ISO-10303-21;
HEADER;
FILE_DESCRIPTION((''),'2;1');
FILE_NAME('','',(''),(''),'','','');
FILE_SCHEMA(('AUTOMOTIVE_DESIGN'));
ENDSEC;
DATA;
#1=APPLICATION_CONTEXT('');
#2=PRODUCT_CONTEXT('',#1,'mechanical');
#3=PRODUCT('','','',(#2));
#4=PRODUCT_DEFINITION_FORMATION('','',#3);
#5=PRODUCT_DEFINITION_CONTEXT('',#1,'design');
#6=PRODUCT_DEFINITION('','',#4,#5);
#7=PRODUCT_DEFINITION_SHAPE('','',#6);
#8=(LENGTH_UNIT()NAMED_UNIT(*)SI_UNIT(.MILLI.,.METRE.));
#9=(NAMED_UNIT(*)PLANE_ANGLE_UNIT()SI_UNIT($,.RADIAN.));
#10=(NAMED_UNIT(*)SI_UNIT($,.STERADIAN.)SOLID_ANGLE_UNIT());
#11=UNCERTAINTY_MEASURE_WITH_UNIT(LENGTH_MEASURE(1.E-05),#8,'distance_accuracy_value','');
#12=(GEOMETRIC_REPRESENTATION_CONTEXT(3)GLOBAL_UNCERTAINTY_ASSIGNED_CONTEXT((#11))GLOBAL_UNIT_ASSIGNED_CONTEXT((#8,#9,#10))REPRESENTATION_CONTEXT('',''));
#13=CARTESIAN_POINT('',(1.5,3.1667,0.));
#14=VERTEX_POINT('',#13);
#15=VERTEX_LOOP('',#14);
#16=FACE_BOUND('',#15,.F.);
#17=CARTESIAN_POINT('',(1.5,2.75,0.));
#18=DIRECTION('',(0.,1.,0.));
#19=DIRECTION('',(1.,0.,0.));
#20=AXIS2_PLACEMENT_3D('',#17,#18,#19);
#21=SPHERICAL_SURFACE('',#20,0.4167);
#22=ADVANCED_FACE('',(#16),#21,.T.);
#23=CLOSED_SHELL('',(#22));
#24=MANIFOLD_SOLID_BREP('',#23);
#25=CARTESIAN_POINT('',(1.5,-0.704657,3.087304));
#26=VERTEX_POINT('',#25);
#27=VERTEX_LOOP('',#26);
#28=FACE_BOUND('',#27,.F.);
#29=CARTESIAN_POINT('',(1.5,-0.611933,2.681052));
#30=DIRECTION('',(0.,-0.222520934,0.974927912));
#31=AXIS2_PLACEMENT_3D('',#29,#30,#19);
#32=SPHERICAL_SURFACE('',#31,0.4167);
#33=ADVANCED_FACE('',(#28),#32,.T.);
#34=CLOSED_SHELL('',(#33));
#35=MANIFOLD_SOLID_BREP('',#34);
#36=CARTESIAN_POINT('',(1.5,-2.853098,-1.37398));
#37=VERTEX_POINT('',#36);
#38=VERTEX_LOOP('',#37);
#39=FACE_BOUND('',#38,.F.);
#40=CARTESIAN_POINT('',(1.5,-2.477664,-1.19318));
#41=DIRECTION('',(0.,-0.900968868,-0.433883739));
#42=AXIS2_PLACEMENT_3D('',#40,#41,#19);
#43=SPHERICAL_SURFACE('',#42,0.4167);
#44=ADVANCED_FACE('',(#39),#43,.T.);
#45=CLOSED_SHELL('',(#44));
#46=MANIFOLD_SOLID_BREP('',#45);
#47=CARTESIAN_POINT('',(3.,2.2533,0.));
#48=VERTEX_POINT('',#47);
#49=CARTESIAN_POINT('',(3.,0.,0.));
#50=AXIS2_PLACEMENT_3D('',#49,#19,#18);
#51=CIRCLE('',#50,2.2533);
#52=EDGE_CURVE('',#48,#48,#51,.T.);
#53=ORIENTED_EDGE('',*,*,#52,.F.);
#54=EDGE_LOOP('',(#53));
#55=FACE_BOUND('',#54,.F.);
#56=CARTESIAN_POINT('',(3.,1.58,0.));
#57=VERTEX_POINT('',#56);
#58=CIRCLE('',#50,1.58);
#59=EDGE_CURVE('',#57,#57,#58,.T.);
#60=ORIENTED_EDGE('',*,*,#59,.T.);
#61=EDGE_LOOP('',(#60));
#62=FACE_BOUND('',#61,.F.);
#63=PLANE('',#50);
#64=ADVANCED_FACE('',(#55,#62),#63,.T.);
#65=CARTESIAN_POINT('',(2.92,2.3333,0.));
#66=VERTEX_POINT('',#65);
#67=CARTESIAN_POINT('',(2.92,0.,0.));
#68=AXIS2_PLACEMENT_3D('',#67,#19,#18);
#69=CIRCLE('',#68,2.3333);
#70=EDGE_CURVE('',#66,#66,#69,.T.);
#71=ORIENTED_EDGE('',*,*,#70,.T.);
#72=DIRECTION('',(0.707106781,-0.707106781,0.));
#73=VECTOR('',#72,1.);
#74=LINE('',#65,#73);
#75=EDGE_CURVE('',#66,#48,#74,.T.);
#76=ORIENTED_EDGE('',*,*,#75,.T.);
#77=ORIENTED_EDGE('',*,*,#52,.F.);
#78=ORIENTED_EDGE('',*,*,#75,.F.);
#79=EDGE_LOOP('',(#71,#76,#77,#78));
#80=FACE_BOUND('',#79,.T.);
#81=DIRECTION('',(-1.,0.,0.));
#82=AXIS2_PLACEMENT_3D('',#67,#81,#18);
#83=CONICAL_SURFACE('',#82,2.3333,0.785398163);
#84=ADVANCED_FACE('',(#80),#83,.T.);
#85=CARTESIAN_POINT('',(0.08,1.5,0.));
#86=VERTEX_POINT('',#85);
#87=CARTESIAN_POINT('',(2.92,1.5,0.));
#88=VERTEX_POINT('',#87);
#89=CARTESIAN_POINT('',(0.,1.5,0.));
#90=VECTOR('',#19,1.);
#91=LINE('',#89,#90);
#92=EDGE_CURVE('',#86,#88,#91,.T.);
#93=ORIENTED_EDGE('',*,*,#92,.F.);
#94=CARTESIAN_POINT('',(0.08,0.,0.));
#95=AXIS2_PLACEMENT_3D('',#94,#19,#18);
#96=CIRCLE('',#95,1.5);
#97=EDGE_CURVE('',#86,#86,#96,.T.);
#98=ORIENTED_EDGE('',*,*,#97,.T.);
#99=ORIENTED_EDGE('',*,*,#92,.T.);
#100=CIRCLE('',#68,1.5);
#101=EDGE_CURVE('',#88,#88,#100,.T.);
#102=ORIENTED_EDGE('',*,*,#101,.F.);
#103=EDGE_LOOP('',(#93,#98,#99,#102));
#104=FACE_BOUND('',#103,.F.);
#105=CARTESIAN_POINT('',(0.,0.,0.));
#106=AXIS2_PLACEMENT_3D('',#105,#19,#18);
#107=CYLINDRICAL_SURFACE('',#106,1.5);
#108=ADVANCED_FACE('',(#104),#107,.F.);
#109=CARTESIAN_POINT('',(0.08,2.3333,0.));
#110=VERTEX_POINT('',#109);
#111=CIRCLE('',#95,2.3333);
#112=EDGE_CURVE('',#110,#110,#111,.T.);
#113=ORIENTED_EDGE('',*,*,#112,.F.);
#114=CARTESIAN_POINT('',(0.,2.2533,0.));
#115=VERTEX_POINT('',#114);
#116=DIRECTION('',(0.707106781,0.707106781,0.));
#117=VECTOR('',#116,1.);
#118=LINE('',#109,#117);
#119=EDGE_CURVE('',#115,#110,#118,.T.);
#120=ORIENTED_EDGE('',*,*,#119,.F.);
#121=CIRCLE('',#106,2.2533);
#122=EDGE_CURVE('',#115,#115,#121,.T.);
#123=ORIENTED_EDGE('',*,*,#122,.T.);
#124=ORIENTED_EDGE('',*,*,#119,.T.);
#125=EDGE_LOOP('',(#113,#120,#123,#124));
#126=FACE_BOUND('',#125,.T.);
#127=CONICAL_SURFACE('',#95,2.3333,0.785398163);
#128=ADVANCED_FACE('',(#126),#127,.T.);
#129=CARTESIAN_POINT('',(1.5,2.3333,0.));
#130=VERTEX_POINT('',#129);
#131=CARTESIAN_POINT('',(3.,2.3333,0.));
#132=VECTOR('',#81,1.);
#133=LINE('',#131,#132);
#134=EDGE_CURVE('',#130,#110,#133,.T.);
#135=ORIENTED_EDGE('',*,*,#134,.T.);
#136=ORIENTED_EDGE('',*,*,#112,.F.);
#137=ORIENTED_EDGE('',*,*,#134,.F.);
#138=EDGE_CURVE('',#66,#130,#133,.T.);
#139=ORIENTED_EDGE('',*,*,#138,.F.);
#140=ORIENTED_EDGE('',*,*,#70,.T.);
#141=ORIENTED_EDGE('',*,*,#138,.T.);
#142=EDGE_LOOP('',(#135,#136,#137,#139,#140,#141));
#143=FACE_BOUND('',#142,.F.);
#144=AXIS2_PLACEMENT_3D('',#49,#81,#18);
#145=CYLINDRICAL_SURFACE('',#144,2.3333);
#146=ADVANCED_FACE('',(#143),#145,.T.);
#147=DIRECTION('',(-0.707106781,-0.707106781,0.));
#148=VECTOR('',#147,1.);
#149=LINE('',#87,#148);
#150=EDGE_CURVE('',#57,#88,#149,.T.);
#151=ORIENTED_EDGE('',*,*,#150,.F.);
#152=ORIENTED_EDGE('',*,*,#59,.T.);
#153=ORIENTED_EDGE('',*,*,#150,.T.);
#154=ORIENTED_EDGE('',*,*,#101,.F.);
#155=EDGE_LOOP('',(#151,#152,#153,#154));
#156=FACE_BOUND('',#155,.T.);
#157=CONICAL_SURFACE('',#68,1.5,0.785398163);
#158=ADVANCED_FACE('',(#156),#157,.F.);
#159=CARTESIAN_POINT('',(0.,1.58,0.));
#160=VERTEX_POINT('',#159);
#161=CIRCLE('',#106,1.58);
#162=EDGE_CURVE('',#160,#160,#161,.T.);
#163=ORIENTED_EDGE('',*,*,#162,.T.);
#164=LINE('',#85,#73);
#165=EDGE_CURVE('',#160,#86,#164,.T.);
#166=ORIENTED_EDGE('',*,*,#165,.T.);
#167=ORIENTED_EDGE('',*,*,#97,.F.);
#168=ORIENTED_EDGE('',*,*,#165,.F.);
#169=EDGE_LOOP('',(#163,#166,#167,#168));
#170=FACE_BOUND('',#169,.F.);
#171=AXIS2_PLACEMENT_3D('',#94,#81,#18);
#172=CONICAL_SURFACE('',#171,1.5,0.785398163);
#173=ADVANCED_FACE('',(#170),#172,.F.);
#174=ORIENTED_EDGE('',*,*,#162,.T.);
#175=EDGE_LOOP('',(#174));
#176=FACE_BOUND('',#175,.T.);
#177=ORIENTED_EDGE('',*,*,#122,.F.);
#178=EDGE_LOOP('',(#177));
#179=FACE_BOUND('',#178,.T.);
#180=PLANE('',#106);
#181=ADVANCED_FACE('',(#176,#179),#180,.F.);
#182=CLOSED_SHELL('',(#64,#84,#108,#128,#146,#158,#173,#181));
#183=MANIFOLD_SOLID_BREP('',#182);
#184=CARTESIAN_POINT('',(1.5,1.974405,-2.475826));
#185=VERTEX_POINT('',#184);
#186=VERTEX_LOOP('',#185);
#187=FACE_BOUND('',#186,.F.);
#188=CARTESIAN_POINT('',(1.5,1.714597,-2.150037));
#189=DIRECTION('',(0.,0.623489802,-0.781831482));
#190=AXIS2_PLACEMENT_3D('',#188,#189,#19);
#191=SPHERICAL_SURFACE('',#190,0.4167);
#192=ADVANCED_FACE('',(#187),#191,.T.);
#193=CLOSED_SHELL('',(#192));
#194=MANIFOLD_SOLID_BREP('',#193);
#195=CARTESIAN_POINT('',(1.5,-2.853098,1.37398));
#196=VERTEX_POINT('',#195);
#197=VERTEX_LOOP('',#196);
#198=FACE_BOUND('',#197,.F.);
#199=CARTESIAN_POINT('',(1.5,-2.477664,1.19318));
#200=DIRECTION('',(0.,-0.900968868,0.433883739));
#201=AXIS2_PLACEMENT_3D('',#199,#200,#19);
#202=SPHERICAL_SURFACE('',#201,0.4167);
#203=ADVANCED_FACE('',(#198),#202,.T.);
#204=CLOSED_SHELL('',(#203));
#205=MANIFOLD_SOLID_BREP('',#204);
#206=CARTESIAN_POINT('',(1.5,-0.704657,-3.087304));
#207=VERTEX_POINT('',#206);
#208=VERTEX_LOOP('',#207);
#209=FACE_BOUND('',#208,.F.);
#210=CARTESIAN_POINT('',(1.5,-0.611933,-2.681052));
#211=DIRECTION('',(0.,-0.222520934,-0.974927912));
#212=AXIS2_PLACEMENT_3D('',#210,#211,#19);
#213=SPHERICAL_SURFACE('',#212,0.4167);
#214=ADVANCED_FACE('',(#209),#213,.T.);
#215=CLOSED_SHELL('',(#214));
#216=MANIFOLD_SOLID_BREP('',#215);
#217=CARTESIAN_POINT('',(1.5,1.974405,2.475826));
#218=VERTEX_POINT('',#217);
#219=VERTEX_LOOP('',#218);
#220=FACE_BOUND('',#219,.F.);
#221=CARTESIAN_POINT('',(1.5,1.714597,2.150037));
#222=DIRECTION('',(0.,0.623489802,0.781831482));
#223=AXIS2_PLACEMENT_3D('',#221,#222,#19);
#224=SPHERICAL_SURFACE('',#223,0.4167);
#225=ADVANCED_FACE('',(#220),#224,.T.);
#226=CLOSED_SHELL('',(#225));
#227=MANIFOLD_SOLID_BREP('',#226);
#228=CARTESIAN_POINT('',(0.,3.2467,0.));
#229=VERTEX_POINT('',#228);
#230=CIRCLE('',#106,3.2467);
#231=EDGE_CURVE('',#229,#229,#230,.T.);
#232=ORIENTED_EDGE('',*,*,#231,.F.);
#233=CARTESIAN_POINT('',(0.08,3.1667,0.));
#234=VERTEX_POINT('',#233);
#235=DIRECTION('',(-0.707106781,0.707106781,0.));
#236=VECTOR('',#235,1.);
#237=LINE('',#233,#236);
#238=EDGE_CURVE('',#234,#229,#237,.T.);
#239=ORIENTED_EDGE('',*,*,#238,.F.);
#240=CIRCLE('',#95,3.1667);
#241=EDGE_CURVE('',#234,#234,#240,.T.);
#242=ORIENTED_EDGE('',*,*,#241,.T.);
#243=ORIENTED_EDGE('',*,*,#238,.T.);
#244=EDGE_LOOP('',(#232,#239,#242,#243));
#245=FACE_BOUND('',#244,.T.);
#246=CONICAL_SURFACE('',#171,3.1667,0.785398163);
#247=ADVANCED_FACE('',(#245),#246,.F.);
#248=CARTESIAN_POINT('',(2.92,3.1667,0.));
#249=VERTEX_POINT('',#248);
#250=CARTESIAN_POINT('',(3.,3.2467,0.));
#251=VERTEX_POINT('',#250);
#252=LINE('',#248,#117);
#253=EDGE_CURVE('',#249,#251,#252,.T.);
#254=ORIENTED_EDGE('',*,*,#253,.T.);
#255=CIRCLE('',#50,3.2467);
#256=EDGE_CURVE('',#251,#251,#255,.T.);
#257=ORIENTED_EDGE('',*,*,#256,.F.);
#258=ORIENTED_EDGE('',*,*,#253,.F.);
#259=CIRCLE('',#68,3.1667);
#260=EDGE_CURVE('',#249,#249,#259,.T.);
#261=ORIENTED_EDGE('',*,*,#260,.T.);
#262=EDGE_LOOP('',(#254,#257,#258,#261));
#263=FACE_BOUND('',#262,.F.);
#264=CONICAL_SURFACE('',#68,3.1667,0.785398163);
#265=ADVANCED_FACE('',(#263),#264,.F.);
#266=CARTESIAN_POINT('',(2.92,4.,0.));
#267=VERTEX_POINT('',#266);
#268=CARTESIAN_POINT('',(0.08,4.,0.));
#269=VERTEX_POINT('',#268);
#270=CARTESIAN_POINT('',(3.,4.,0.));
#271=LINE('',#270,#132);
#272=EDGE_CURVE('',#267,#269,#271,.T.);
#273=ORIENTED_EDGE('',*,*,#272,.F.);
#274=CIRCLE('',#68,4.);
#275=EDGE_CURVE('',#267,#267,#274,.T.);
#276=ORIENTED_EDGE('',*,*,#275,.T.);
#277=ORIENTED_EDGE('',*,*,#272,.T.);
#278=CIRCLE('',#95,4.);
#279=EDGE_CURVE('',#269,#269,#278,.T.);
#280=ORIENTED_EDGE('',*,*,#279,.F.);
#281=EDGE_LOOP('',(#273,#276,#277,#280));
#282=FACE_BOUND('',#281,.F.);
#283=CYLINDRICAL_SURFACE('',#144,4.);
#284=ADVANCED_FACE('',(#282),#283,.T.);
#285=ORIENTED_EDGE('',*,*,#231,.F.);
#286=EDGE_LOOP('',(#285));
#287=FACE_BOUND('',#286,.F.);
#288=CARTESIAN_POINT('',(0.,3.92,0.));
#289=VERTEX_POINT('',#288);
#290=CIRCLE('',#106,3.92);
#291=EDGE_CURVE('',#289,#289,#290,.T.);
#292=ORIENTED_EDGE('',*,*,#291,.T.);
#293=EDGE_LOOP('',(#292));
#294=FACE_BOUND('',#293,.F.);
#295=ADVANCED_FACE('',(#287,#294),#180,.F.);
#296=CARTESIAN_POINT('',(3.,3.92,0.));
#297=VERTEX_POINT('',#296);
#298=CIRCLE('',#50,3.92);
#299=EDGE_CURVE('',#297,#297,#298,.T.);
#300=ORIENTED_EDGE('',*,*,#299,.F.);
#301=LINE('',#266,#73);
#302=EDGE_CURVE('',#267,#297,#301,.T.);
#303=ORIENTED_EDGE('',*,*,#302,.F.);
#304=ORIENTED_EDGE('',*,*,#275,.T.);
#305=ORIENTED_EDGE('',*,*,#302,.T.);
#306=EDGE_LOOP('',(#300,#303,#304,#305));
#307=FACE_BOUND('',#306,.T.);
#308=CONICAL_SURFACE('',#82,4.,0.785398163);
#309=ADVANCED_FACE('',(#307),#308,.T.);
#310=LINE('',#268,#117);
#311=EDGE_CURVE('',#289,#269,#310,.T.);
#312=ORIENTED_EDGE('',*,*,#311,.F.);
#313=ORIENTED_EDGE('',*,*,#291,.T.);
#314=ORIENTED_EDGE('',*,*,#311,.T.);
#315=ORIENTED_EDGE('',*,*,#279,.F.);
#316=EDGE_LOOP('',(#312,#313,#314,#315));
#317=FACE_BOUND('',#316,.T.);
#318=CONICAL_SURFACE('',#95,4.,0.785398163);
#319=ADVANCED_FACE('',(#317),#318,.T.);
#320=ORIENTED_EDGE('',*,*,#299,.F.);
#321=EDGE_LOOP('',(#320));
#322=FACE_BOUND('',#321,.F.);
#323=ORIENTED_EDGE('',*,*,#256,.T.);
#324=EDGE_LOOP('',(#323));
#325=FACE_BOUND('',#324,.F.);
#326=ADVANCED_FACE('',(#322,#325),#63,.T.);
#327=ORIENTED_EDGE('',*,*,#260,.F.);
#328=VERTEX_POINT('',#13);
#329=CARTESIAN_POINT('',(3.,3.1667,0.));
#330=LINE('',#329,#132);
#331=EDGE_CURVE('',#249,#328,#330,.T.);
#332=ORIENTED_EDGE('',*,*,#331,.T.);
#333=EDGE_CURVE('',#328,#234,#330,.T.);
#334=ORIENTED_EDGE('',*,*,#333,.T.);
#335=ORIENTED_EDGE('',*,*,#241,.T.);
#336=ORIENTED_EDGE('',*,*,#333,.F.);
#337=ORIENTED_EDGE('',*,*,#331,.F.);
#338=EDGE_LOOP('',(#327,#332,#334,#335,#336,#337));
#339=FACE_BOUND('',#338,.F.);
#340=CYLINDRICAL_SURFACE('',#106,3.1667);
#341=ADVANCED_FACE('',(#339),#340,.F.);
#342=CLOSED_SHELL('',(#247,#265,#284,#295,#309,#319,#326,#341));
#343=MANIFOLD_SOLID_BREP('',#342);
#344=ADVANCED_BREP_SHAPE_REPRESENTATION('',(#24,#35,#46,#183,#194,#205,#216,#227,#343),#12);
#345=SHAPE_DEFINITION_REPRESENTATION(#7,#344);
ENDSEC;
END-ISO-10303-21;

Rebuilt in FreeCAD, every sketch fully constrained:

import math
import FreeCAD as App
import Part
import Sketcher

V = App.Vector


def edges_at(feature, points):
    """Names of the edges that pass closest to the given points."""
    edges = feature.Shape.Edges
    near = lambda p: min(range(len(edges)), key=lambda i: edges[i].distToShape(Part.Vertex(*p))[0])
    return sorted({f"Edge{near(p) + 1}" for p in points})

doc = App.newDocument("Part")
params = doc.addObject("Spreadsheet::Sheet", "Params")
for row, (alias, value) in enumerate([
    ("sketch1_width", "3 mm"),
    ("revolution_angle", "360 deg"),
    ("chamfer_size", "0.08 mm"),
    ("revolution2_angle", "360 deg"),
], start=1):
    params.set(f"A{row}", alias)
    params.set(f"B{row}", "=" + value)
    params.setAlias(f"B{row}", alias)

body = doc.addObject("PartDesign::Body", "Body")
body.AllowCompound = True

# Sketch on XY plane
sketch1 = doc.addObject("Sketcher::SketchObject", "Sketch")
body.addObject(sketch1)
sketch1.AttachmentSupport = (doc.XY_Plane, [""])
sketch1.MapMode = "FlatFace"
sketch1.addGeometry(Part.LineSegment(V(0, 3.2, 0), V(3, 3.2, 0)), False)
sketch1.addGeometry(Part.LineSegment(V(3, 3.2, 0), V(3, 4, 0)), False)
sketch1.addGeometry(Part.LineSegment(V(3, 4, 0), V(0, 4, 0)), False)
sketch1.addGeometry(Part.LineSegment(V(0, 4, 0), V(0, 3.2, 0)), False)
sketch1.addGeometry(Part.LineSegment(V(0, 2.3, 0), V(0, 1.5, 0)), False)
sketch1.addGeometry(Part.LineSegment(V(0, 1.5, 0), V(3, 1.5, 0)), False)
sketch1.addGeometry(Part.LineSegment(V(3, 1.5, 0), V(3, 2.3, 0)), False)
sketch1.addGeometry(Part.LineSegment(V(3, 2.3, 0), V(0, 2.3, 0)), False)
sketch1.addConstraint(Sketcher.Constraint("Coincident", 0, 2, 1, 1))
sketch1.addConstraint(Sketcher.Constraint("Coincident", 1, 2, 2, 1))
sketch1.addConstraint(Sketcher.Constraint("Coincident", 2, 2, 3, 1))
sketch1.addConstraint(Sketcher.Constraint("Coincident", 3, 2, 0, 1))
sketch1.addConstraint(Sketcher.Constraint("Coincident", 4, 2, 5, 1))
sketch1.addConstraint(Sketcher.Constraint("Coincident", 5, 2, 6, 1))
sketch1.addConstraint(Sketcher.Constraint("Coincident", 6, 2, 7, 1))
sketch1.addConstraint(Sketcher.Constraint("Coincident", 7, 2, 4, 1))
sketch1.addConstraint(Sketcher.Constraint("Horizontal", 0))
sketch1.addConstraint(Sketcher.Constraint("Vertical", 1))
sketch1.addConstraint(Sketcher.Constraint("Horizontal", 2))
sketch1.addConstraint(Sketcher.Constraint("Vertical", 3))
sketch1.addConstraint(Sketcher.Constraint("Vertical", 4))
sketch1.addConstraint(Sketcher.Constraint("Horizontal", 5))
sketch1.addConstraint(Sketcher.Constraint("Vertical", 6))
sketch1.addConstraint(Sketcher.Constraint("Horizontal", 7))
sketch1.addConstraint(Sketcher.Constraint("PointOnObject", 2, 2, -2))
sketch1.addConstraint(Sketcher.Constraint("PointOnObject", 4, 2, -2))
sketch1.addConstraint(Sketcher.Constraint("Vertical", 1, 2, 5, 2))
sketch1.addConstraint(Sketcher.Constraint("Equal", 3, 4))
sketch1.addConstraint(Sketcher.Constraint("DistanceX", 0, 1, 0, 2, 3.0))
sketch1.addConstraint(Sketcher.Constraint("DistanceY", 1, 1, 1, 2, 0.8333))
sketch1.addConstraint(Sketcher.Constraint("DistanceY", -1, 1, 1, 2, 4.0))
sketch1.addConstraint(Sketcher.Constraint("DistanceY", -1, 1, 4, 2, 1.5))
sketch1.setExpression("Constraints[20]", "Params.sketch1_width")
revolution = doc.addObject("PartDesign::Revolution", "Revolution")
body.addObject(revolution)
revolution.Profile = sketch1
revolution.ReferenceAxis = (sketch1, ["H_Axis"])
revolution.setExpression("Angle", "Params.revolution_angle")
doc.recompute()

chamfer = doc.addObject("PartDesign::Chamfer", "Chamfer")
body.addObject(chamfer)
chamfer.Base = (revolution, edges_at(revolution, [
    (3, -4, 0),
    (3, -3.167, 0),
    (3, -2.333, 0),
    (3, -1.5, 0),
    (0, -4, 0),
    (0, -3.167, 0),
    (0, -2.333, 0),
    (0, -1.5, 0),
]))
chamfer.setExpression("Size", "Params.chamfer_size")

# Sketch on XY plane
sketch2 = doc.addObject("Sketcher::SketchObject", "Sketch001")
body.addObject(sketch2)
sketch2.AttachmentSupport = (doc.XY_Plane, [""])
sketch2.MapMode = "FlatFace"
sketch2.addGeometry(Part.LineSegment(V(1.5, 3.17, 0), V(1.5, 2.33, 0)), False)
sketch2.addGeometry(Part.ArcOfCircle(Part.Circle(V(1.5, 2.75, 0), V(0, 0, 1), 0.42), math.radians(-90), math.radians(90)), False)
sketch2.addGeometry(Part.LineSegment(V(1.5, 3.17, 0), V(1.5, 2.33, 0)), True)  # axis
sketch2.addConstraint(Sketcher.Constraint("Coincident", 0, 1, 1, 2))
sketch2.addConstraint(Sketcher.Constraint("Coincident", 1, 1, 0, 2))
sketch2.addConstraint(Sketcher.Constraint("Vertical", 0))
sketch2.addConstraint(Sketcher.Constraint("Vertical", 2))
sketch2.addConstraint(Sketcher.Constraint("Coincident", 2, 1, 0, 1))
sketch2.addConstraint(Sketcher.Constraint("Vertical", 1, 3, 0, 1))
sketch2.addConstraint(Sketcher.Constraint("Equal", 0, 2))
sketch2.addConstraint(Sketcher.Constraint("Radius", 1, 0.4167))
sketch2.addConstraint(Sketcher.Constraint("DistanceX", -1, 1, 1, 3, 1.5))
sketch2.addConstraint(Sketcher.Constraint("DistanceY", -1, 1, 1, 3, 2.75))
revolution2 = doc.addObject("PartDesign::Revolution", "Revolution001")
body.addObject(revolution2)
revolution2.Profile = sketch2
revolution2.ReferenceAxis = (sketch2, ["Axis0"])
revolution2.setExpression("Angle", "Params.revolution2_angle")
doc.recompute()

polarpattern = doc.addObject("PartDesign::PolarPattern", "PolarPattern")
body.addObject(polarpattern)
polarpattern.Originals = [revolution2]
polarpattern.Axis = (doc.X_Axis, [""])
polarpattern.Angle = 360
polarpattern.Occurrences = 7
body.Tip = polarpattern

doc.recompute()
